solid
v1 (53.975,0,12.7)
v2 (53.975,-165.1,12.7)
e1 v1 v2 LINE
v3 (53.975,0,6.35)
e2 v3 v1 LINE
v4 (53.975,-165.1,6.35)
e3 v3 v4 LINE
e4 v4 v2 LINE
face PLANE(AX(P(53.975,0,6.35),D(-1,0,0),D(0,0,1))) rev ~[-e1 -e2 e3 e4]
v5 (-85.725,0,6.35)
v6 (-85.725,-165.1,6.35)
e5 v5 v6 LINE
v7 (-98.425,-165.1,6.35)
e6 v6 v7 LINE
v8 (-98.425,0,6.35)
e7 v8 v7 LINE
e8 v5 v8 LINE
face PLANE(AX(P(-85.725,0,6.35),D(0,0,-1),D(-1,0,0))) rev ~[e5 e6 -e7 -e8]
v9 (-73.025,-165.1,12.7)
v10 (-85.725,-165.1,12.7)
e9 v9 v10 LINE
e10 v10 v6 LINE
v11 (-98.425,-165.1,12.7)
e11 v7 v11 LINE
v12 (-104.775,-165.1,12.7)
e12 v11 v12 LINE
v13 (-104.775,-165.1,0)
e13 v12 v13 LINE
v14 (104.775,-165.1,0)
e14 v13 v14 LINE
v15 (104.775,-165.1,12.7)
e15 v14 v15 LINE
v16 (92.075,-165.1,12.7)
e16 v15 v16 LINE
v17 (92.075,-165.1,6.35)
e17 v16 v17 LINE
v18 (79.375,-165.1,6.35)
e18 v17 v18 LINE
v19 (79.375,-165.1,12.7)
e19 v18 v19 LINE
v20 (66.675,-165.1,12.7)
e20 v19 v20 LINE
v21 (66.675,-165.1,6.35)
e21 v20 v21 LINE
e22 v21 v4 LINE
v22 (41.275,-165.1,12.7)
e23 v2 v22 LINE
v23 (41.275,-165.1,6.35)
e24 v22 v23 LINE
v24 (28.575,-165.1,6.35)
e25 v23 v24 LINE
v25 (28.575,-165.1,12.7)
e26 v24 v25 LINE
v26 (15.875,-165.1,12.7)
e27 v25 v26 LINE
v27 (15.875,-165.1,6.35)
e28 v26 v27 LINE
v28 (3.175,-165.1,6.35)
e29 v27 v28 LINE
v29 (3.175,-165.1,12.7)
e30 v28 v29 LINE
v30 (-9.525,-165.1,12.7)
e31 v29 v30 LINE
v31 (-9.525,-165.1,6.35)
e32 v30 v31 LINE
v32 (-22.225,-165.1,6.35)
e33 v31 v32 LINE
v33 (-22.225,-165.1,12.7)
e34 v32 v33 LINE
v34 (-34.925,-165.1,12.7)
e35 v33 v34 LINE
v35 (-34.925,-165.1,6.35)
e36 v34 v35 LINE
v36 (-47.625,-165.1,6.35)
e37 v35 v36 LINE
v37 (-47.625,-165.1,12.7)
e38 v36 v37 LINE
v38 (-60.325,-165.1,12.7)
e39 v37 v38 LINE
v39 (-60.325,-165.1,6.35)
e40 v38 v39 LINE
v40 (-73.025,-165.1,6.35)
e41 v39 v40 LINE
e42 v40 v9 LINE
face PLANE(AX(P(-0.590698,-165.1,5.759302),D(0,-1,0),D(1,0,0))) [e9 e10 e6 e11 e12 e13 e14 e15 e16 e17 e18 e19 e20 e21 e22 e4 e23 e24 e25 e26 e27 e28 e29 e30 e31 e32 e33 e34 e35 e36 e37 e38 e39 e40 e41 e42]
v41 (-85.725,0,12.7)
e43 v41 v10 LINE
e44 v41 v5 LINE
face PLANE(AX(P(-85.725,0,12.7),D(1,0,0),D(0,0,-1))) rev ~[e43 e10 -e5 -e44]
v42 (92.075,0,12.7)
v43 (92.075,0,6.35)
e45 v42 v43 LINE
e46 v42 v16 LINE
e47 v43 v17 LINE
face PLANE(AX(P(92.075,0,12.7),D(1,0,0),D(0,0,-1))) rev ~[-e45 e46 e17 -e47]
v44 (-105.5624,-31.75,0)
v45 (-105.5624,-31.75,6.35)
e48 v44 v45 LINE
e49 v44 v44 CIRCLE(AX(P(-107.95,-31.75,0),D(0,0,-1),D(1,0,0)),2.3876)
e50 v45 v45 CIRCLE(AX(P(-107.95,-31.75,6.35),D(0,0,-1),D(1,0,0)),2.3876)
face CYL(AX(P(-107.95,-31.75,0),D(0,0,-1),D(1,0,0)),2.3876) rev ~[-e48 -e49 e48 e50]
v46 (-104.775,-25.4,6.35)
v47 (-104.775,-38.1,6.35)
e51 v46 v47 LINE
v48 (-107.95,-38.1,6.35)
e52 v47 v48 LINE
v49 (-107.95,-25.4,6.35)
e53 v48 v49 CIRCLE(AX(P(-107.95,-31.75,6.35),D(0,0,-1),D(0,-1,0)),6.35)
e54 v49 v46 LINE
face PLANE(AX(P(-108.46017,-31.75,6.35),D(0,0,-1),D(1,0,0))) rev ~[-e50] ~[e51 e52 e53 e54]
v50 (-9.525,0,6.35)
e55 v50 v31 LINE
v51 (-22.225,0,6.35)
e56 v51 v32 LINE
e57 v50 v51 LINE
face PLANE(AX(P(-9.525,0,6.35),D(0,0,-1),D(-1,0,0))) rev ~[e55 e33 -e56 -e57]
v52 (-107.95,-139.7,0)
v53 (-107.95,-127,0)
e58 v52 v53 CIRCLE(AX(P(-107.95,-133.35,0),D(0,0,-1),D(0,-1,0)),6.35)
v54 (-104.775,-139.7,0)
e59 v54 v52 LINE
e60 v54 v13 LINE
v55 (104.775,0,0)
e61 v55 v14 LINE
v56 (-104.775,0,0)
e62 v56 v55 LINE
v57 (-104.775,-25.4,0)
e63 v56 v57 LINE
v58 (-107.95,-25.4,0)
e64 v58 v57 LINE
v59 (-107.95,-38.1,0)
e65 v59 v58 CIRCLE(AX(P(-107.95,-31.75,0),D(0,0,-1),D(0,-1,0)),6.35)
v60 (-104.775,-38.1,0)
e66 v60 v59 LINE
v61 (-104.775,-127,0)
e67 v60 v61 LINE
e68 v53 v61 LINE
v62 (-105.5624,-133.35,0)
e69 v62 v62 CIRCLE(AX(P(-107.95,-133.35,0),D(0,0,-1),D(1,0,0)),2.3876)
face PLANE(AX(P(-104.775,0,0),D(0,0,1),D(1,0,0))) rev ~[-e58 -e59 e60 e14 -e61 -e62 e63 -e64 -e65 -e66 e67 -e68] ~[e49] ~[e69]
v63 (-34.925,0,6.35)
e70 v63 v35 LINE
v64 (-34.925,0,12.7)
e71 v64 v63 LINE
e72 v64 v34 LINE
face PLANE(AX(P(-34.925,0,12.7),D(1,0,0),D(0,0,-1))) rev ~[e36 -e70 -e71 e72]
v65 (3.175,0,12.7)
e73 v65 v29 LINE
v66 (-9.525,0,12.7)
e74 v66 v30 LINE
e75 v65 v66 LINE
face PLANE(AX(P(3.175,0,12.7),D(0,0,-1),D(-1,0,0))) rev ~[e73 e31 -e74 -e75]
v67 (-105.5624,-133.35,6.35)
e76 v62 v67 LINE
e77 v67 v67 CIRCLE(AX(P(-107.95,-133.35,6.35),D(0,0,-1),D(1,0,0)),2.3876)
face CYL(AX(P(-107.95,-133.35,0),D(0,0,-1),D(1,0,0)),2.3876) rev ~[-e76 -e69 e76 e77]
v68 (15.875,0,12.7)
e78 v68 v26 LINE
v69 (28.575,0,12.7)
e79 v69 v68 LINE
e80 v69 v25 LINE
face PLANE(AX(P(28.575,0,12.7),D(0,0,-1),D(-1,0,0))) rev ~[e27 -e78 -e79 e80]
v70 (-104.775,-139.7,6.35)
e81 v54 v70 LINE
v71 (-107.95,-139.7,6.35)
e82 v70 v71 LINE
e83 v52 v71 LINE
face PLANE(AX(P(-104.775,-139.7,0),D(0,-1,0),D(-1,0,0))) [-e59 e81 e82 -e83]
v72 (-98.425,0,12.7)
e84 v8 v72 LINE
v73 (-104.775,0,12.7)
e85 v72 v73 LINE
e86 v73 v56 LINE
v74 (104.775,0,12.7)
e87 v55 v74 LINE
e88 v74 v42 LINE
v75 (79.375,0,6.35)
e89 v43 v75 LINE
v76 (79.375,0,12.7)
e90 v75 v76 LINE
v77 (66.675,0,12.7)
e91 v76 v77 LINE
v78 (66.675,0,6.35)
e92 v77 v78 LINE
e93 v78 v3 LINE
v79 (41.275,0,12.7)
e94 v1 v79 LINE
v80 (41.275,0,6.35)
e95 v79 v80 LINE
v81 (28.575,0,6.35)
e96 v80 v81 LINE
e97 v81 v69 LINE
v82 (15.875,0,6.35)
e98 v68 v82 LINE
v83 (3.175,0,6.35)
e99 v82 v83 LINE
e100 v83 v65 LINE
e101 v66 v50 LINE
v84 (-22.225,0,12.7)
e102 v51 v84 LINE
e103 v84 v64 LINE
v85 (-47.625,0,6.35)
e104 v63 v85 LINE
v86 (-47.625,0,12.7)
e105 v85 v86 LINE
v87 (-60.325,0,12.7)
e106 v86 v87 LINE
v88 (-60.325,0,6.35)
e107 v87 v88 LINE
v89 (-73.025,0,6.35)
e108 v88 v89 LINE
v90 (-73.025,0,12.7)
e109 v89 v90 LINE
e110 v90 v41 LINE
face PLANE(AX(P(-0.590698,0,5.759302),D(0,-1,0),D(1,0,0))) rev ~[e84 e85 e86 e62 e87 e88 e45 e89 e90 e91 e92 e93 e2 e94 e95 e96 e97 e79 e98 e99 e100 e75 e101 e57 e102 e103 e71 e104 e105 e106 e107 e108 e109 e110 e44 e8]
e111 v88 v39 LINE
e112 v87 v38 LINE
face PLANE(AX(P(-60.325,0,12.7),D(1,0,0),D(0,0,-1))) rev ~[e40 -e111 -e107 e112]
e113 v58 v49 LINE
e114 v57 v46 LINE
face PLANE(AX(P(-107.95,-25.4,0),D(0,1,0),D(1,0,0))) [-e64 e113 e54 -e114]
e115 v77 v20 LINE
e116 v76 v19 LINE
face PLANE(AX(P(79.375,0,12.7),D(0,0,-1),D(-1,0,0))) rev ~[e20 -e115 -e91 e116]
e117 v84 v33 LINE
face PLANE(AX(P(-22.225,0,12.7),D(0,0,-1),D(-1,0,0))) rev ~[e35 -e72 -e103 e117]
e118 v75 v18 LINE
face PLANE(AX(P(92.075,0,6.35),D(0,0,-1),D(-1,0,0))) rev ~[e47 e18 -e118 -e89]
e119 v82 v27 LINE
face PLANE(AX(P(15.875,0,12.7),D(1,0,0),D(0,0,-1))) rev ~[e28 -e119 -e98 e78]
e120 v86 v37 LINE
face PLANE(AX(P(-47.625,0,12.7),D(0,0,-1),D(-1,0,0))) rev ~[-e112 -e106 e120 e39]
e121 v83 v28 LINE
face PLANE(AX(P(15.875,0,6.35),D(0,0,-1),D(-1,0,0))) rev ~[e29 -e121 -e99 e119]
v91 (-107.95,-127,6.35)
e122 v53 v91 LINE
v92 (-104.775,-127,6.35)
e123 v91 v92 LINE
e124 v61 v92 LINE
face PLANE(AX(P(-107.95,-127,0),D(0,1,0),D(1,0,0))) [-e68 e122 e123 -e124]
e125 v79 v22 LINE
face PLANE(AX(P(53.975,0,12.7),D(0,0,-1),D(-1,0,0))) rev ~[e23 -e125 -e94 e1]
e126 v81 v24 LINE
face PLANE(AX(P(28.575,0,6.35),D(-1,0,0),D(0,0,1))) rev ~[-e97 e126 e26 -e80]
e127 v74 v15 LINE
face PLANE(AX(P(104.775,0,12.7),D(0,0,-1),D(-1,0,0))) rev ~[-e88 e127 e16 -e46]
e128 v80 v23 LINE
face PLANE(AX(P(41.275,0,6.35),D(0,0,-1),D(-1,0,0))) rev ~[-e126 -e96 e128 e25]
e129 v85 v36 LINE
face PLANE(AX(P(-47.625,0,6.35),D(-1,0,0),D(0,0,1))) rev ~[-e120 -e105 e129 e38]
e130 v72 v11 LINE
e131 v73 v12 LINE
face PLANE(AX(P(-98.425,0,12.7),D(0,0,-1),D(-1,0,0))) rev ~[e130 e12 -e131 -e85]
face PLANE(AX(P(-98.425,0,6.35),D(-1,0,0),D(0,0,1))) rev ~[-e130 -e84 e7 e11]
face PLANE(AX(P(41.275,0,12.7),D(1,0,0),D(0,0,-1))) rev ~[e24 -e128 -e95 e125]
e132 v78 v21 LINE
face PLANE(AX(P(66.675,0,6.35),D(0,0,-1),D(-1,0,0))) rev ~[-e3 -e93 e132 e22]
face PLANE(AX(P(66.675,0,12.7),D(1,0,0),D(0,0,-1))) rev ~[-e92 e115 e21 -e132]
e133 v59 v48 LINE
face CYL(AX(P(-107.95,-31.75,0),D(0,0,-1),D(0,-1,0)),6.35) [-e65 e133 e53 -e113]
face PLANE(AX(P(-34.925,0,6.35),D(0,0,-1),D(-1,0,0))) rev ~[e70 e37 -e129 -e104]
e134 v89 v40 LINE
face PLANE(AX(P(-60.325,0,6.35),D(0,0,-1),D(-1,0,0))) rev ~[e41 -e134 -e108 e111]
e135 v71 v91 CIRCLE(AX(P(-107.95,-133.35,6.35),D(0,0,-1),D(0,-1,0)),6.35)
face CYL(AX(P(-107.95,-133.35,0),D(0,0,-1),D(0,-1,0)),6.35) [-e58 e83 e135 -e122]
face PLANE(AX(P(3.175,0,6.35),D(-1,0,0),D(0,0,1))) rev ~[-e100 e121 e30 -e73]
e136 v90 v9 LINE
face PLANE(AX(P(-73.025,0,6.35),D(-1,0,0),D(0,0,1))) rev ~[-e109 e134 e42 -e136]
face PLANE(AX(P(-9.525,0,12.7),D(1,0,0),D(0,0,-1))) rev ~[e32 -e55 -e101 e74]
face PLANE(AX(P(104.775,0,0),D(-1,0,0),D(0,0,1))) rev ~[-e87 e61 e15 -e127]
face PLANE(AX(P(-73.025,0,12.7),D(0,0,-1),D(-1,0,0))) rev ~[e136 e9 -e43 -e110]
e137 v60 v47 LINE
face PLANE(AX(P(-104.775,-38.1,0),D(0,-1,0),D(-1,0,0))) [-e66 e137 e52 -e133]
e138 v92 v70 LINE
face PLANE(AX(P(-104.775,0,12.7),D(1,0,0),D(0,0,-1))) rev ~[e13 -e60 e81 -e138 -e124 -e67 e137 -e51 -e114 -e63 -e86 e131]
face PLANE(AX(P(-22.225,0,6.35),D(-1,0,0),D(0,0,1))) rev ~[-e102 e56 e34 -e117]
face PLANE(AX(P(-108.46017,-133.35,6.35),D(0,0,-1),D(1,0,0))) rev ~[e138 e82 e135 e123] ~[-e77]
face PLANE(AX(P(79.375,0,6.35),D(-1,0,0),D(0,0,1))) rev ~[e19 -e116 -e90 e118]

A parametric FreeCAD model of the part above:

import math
import FreeCAD as App
import Part
import Sketcher
from FreeCAD import Vector
Q = App.Units.Quantity

doc = App.newDocument("Part")
params = doc.addObject("Spreadsheet::Sheet", "Params")
for row, (alias, value) in enumerate([
    ("sketch1_width", "0.5 in"),
    ("sketch1_width2", "8.25 in"),
    ("pad1_length", "6.5 in"),
    ("sketch2_radius", "0.25 in"),
    ("sketch2_diameter", "0.188 in"),
    ("sketch2_width", "0.125 in"),
    ("pad2_length", "0.25 in"),
], start=1):
    params.set(f"A{row}", alias)
    params.set(f"B{row}", "=" + value)
    params.setAlias(f"B{row}", alias)

body = doc.addObject("PartDesign::Body", "Body")

sketch1 = body.newObject("Sketcher::SketchObject", "Sketch")
sketch1.AttachmentSupport = (doc.getObject("XZ_Plane"), [""])
sketch1.MapMode = "FlatFace"
sketch1.addGeometry([
    Part.LineSegment(Vector(-104.775, 12.7, 0), Vector(-104.775, 0, 0)),
    Part.LineSegment(Vector(-104.775, 0, 0), Vector(104.775, 0, 0)),
    Part.LineSegment(Vector(104.775, 0, 0), Vector(104.775, 12.7, 0)),
    Part.LineSegment(Vector(104.775, 12.7, 0), Vector(92.075, 12.7, 0)),
    Part.LineSegment(Vector(92.075, 12.7, 0), Vector(92.075, 6.35, 0)),
    Part.LineSegment(Vector(92.075, 6.35, 0), Vector(79.375, 6.35, 0)),
    Part.LineSegment(Vector(79.375, 6.35, 0), Vector(79.375, 12.7, 0)),
    Part.LineSegment(Vector(79.375, 12.7, 0), Vector(66.675, 12.7, 0)),
    Part.LineSegment(Vector(66.675, 12.7, 0), Vector(66.675, 6.35, 0)),
    Part.LineSegment(Vector(66.675, 6.35, 0), Vector(53.975, 6.35, 0)),
    Part.LineSegment(Vector(53.975, 6.35, 0), Vector(53.975, 12.7, 0)),
    Part.LineSegment(Vector(53.975, 12.7, 0), Vector(41.275, 12.7, 0)),
    Part.LineSegment(Vector(41.275, 12.7, 0), Vector(41.275, 6.35, 0)),
    Part.LineSegment(Vector(41.275, 6.35, 0), Vector(28.575, 6.35, 0)),
    Part.LineSegment(Vector(28.575, 6.35, 0), Vector(28.575, 12.7, 0)),
    Part.LineSegment(Vector(28.575, 12.7, 0), Vector(15.875, 12.7, 0)),
    Part.LineSegment(Vector(15.875, 12.7, 0), Vector(15.875, 6.35, 0)),
    Part.LineSegment(Vector(15.875, 6.35, 0), Vector(3.175, 6.35, 0)),
    Part.LineSegment(Vector(3.175, 6.35, 0), Vector(3.175, 12.7, 0)),
    Part.LineSegment(Vector(3.175, 12.7, 0), Vector(-9.525, 12.7, 0)),
    Part.LineSegment(Vector(-9.525, 12.7, 0), Vector(-9.525, 6.35, 0)),
    Part.LineSegment(Vector(-9.525, 6.35, 0), Vector(-22.225, 6.35, 0)),
    Part.LineSegment(Vector(-22.225, 6.35, 0), Vector(-22.225, 12.7, 0)),
    Part.LineSegment(Vector(-22.225, 12.7, 0), Vector(-34.925, 12.7, 0)),
    Part.LineSegment(Vector(-34.925, 12.7, 0), Vector(-34.925, 6.35, 0)),
    Part.LineSegment(Vector(-34.925, 6.35, 0), Vector(-47.625, 6.35, 0)),
    Part.LineSegment(Vector(-47.625, 6.35, 0), Vector(-47.625, 12.7, 0)),
    Part.LineSegment(Vector(-47.625, 12.7, 0), Vector(-60.325, 12.7, 0)),
    Part.LineSegment(Vector(-60.325, 12.7, 0), Vector(-60.325, 6.35, 0)),
    Part.LineSegment(Vector(-60.325, 6.35, 0), Vector(-73.025, 6.35, 0)),
    Part.LineSegment(Vector(-73.025, 6.35, 0), Vector(-73.025, 12.7, 0)),
    Part.LineSegment(Vector(-73.025, 12.7, 0), Vector(-85.725, 12.7, 0)),
    Part.LineSegment(Vector(-85.725, 12.7, 0), Vector(-85.725, 6.35, 0)),
    Part.LineSegment(Vector(-85.725, 6.35, 0), Vector(-98.425, 6.35, 0)),
    Part.LineSegment(Vector(-98.425, 6.35, 0), Vector(-98.425, 12.7, 0)),
    Part.LineSegment(Vector(-98.425, 12.7, 0), Vector(-104.775, 12.7, 0)),
], False)
sketch1.addConstraint([
    Sketcher.Constraint("Coincident", 0, 2, 1, 1),
    Sketcher.Constraint("Coincident", 1, 2, 2, 1),
    Sketcher.Constraint("Coincident", 2, 2, 3, 1),
    Sketcher.Constraint("Coincident", 3, 2, 4, 1),
    Sketcher.Constraint("Coincident", 4, 2, 5, 1),
    Sketcher.Constraint("Coincident", 5, 2, 6, 1),
    Sketcher.Constraint("Coincident", 6, 2, 7, 1),
    Sketcher.Constraint("Coincident", 7, 2, 8, 1),
    Sketcher.Constraint("Coincident", 8, 2, 9, 1),
    Sketcher.Constraint("Coincident", 9, 2, 10, 1),
    Sketcher.Constraint("Coincident", 10, 2, 11, 1),
    Sketcher.Constraint("Coincident", 11, 2, 12, 1),
    Sketcher.Constraint("Coincident", 12, 2, 13, 1),
    Sketcher.Constraint("Coincident", 13, 2, 14, 1),
    Sketcher.Constraint("Coincident", 14, 2, 15, 1),
    Sketcher.Constraint("Coincident", 15, 2, 16, 1),
    Sketcher.Constraint("Coincident", 16, 2, 17, 1),
    Sketcher.Constraint("Coincident", 17, 2, 18, 1),
    Sketcher.Constraint("Coincident", 18, 2, 19, 1),
    Sketcher.Constraint("Coincident", 19, 2, 20, 1),
    Sketcher.Constraint("Coincident", 20, 2, 21, 1),
    Sketcher.Constraint("Coincident", 21, 2, 22, 1),
    Sketcher.Constraint("Coincident", 22, 2, 23, 1),
    Sketcher.Constraint("Coincident", 23, 2, 24, 1),
    Sketcher.Constraint("Coincident", 24, 2, 25, 1),
    Sketcher.Constraint("Coincident", 25, 2, 26, 1),
    Sketcher.Constraint("Coincident", 26, 2, 27, 1),
    Sketcher.Constraint("Coincident", 27, 2, 28, 1),
    Sketcher.Constraint("Coincident", 28, 2, 29, 1),
    Sketcher.Constraint("Coincident", 29, 2, 30, 1),
    Sketcher.Constraint("Coincident", 30, 2, 31, 1),
    Sketcher.Constraint("Coincident", 31, 2, 32, 1),
    Sketcher.Constraint("Coincident", 32, 2, 33, 1),
    Sketcher.Constraint("Coincident", 33, 2, 34, 1),
    Sketcher.Constraint("Coincident", 34, 2, 35, 1),
    Sketcher.Constraint("Coincident", 35, 2, 0, 1),
    Sketcher.Constraint("Vertical", 0),
    Sketcher.Constraint("Horizontal", 1),
    Sketcher.Constraint("Vertical", 2),
    Sketcher.Constraint("Horizontal", 3),
    Sketcher.Constraint("Vertical", 4),
    Sketcher.Constraint("Horizontal", 5),
    Sketcher.Constraint("Vertical", 6),
    Sketcher.Constraint("Horizontal", 7),
    Sketcher.Constraint("Vertical", 8),
    Sketcher.Constraint("Horizontal", 9),
    Sketcher.Constraint("Vertical", 10),
    Sketcher.Constraint("Horizontal", 11),
    Sketcher.Constraint("Vertical", 12),
    Sketcher.Constraint("Horizontal", 13),
    Sketcher.Constraint("Vertical", 14),
    Sketcher.Constraint("Horizontal", 15),
    Sketcher.Constraint("Vertical", 16),
    Sketcher.Constraint("Horizontal", 17),
    Sketcher.Constraint("Vertical", 18),
    Sketcher.Constraint("Horizontal", 19),
    Sketcher.Constraint("Vertical", 20),
    Sketcher.Constraint("Horizontal", 21),
    Sketcher.Constraint("Vertical", 22),
    Sketcher.Constraint("Horizontal", 23),
    Sketcher.Constraint("Vertical", 24),
    Sketcher.Constraint("Horizontal", 25),
    Sketcher.Constraint("Vertical", 26),
    Sketcher.Constraint("Horizontal", 27),
    Sketcher.Constraint("Vertical", 28),
    Sketcher.Constraint("Horizontal", 29),
    Sketcher.Constraint("Vertical", 30),
    Sketcher.Constraint("Horizontal", 31),
    Sketcher.Constraint("Vertical", 32),
    Sketcher.Constraint("Horizontal", 33),
    Sketcher.Constraint("Vertical", 34),
    Sketcher.Constraint("Horizontal", 35),
    Sketcher.Constraint("Symmetric", 0, 2, 1, 2, -1, 1),
    Sketcher.Constraint("Horizontal", 3, 2, 6, 2),
    Sketcher.Constraint("Horizontal", 5, 2, 8, 2),
    Sketcher.Constraint("Horizontal", 7, 2, 10, 2),
    Sketcher.Constraint("Horizontal", 9, 2, 12, 2),
    Sketcher.Constraint("Horizontal", 11, 2, 14, 2),
    Sketcher.Constraint("Horizontal", 13, 2, 16, 2),
    Sketcher.Constraint("Horizontal", 15, 2, 18, 2),
    Sketcher.Constraint("Horizontal", 17, 2, 20, 2),
    Sketcher.Constraint("Horizontal", 19, 2, 22, 2),
    Sketcher.Constraint("Horizontal", 21, 2, 24, 2),
    Sketcher.Constraint("Horizontal", 23, 2, 26, 2),
    Sketcher.Constraint("Horizontal", 25, 2, 28, 2),
    Sketcher.Constraint("Horizontal", 27, 2, 30, 2),
    Sketcher.Constraint("Horizontal", 29, 2, 32, 2),
    Sketcher.Constraint("Horizontal", 31, 2, 34, 2),
    Sketcher.Constraint("Equal", 3, 5),
    Sketcher.Constraint("Equal", 5, 7),
    Sketcher.Constraint("Equal", 7, 9),
    Sketcher.Constraint("Equal", 9, 11),
    Sketcher.Constraint("Equal", 11, 13),
    Sketcher.Constraint("Equal", 13, 15),
    Sketcher.Constraint("Equal", 15, 17),
    Sketcher.Constraint("Equal", 17, 19),
    Sketcher.Constraint("Equal", 19, 21),
    Sketcher.Constraint("Equal", 21, 23),
    Sketcher.Constraint("Equal", 23, 25),
    Sketcher.Constraint("Equal", 25, 27),
    Sketcher.Constraint("Equal", 27, 29),
    Sketcher.Constraint("Equal", 29, 31),
    Sketcher.Constraint("Equal", 31, 33),
    Sketcher.Constraint("Equal", 33, 0),
    Sketcher.Constraint("Equal", 35, 4),
    Sketcher.Constraint("DistanceX", 3, 2, 3, 1, Q("0.5 in")),
    Sketcher.Constraint("DistanceX", 1, 1, 1, 2, Q("8.25 in")),
])
sketch1.setExpression("Constraints[105]", "Params.sketch1_width")
sketch1.setExpression("Constraints[106]", "Params.sketch1_width2")
pad1 = body.newObject("PartDesign::Pad", "Pad")
pad1.Profile = sketch1
pad1.setExpression("Length", "Params.pad1_length")

sketch2 = body.newObject("Sketcher::SketchObject", "Sketch001")
sketch2.AttachmentSupport = (doc.getObject("XY_Plane"), [""])
sketch2.MapMode = "FlatFace"
sketch2.addGeometry([
    Part.LineSegment(Vector(-107.95, -25.4, 0), Vector(-104.775, -25.4, 0)),
    Part.LineSegment(Vector(-104.775, -25.4, 0), Vector(-104.775, -38.1, 0)),
    Part.LineSegment(Vector(-104.775, -38.1, 0), Vector(-107.95, -38.1, 0)),
    Part.ArcOfCircle(Part.Circle(Vector(-107.95, -31.75, 0), Vector(0, 0, 1), 6.35), math.radians(90), math.radians(270)),
    Part.Circle(Vector(-107.95, -31.75, 0), Vector(0, 0, 1), 2.3876),
    Part.ArcOfCircle(Part.Circle(Vector(-107.95, -133.35, 0), Vector(0, 0, 1), 6.35), math.radians(90), math.radians(270)),
    Part.LineSegment(Vector(-107.95, -127, 0), Vector(-104.775, -127, 0)),
    Part.LineSegment(Vector(-104.775, -127, 0), Vector(-104.775, -139.7, 0)),
    Part.LineSegment(Vector(-104.775, -139.7, 0), Vector(-107.95, -139.7, 0)),
    Part.Circle(Vector(-107.95, -133.35, 0), Vector(0, 0, 1), 2.3876),
], False)
sketch2.addConstraint([
    Sketcher.Constraint("Coincident", 0, 2, 1, 1),
    Sketcher.Constraint("Coincident", 1, 2, 2, 1),
    Sketcher.Constraint("Tangent", 2, 2, 3, 2),
    Sketcher.Constraint("Tangent", 3, 1, 0, 1),
    Sketcher.Constraint("Tangent", 5, 1, 6, 1),
    Sketcher.Constraint("Coincident", 6, 2, 7, 1),
    Sketcher.Constraint("Coincident", 7, 2, 8, 1),
    Sketcher.Constraint("Tangent", 8, 2, 5, 2),
    Sketcher.Constraint("Horizontal", 0),
    Sketcher.Constraint("Vertical", 1),
    Sketcher.Constraint("Horizontal", 2),
    Sketcher.Constraint("Horizontal", 6),
    Sketcher.Constraint("Vertical", 7),
    Sketcher.Constraint("Horizontal", 8),
    Sketcher.Constraint("Coincident", 4, 3, 3, 3),
    Sketcher.Constraint("Coincident", 9, 3, 5, 3),
    Sketcher.Constraint("Equal", 3, 5),
    Sketcher.Constraint("Equal", 4, 9),
    Sketcher.Constraint("Vertical", 4, 3, 5, 3),
    Sketcher.Constraint("Vertical", 1, 2, 6, 2),
    Sketcher.Constraint("Radius", 3, Q("0.25 in")),
    Sketcher.Constraint("Diameter", 4, Q("0.188 in")),
    Sketcher.Constraint("DistanceY", 0, 2, -1, 1, Q("1 in")),
    Sketcher.Constraint("DistanceY", 5, 1, -1, 1, Q("5 in")),
    Sketcher.Constraint("DistanceX", 0, 1, 0, 2, Q("0.125 in")),
    Sketcher.Constraint("DistanceX", 3, 3, -1, 1, Q("4.25 in")),
])
sketch2.setExpression("Constraints[20]", "Params.sketch2_radius")
sketch2.setExpression("Constraints[21]", "Params.sketch2_diameter")
sketch2.setExpression("Constraints[24]", "Params.sketch2_width")
pad2 = body.newObject("PartDesign::Pad", "Pad001")
pad2.Profile = sketch2
pad2.setExpression("Length", "Params.pad2_length")

doc.recompute()
